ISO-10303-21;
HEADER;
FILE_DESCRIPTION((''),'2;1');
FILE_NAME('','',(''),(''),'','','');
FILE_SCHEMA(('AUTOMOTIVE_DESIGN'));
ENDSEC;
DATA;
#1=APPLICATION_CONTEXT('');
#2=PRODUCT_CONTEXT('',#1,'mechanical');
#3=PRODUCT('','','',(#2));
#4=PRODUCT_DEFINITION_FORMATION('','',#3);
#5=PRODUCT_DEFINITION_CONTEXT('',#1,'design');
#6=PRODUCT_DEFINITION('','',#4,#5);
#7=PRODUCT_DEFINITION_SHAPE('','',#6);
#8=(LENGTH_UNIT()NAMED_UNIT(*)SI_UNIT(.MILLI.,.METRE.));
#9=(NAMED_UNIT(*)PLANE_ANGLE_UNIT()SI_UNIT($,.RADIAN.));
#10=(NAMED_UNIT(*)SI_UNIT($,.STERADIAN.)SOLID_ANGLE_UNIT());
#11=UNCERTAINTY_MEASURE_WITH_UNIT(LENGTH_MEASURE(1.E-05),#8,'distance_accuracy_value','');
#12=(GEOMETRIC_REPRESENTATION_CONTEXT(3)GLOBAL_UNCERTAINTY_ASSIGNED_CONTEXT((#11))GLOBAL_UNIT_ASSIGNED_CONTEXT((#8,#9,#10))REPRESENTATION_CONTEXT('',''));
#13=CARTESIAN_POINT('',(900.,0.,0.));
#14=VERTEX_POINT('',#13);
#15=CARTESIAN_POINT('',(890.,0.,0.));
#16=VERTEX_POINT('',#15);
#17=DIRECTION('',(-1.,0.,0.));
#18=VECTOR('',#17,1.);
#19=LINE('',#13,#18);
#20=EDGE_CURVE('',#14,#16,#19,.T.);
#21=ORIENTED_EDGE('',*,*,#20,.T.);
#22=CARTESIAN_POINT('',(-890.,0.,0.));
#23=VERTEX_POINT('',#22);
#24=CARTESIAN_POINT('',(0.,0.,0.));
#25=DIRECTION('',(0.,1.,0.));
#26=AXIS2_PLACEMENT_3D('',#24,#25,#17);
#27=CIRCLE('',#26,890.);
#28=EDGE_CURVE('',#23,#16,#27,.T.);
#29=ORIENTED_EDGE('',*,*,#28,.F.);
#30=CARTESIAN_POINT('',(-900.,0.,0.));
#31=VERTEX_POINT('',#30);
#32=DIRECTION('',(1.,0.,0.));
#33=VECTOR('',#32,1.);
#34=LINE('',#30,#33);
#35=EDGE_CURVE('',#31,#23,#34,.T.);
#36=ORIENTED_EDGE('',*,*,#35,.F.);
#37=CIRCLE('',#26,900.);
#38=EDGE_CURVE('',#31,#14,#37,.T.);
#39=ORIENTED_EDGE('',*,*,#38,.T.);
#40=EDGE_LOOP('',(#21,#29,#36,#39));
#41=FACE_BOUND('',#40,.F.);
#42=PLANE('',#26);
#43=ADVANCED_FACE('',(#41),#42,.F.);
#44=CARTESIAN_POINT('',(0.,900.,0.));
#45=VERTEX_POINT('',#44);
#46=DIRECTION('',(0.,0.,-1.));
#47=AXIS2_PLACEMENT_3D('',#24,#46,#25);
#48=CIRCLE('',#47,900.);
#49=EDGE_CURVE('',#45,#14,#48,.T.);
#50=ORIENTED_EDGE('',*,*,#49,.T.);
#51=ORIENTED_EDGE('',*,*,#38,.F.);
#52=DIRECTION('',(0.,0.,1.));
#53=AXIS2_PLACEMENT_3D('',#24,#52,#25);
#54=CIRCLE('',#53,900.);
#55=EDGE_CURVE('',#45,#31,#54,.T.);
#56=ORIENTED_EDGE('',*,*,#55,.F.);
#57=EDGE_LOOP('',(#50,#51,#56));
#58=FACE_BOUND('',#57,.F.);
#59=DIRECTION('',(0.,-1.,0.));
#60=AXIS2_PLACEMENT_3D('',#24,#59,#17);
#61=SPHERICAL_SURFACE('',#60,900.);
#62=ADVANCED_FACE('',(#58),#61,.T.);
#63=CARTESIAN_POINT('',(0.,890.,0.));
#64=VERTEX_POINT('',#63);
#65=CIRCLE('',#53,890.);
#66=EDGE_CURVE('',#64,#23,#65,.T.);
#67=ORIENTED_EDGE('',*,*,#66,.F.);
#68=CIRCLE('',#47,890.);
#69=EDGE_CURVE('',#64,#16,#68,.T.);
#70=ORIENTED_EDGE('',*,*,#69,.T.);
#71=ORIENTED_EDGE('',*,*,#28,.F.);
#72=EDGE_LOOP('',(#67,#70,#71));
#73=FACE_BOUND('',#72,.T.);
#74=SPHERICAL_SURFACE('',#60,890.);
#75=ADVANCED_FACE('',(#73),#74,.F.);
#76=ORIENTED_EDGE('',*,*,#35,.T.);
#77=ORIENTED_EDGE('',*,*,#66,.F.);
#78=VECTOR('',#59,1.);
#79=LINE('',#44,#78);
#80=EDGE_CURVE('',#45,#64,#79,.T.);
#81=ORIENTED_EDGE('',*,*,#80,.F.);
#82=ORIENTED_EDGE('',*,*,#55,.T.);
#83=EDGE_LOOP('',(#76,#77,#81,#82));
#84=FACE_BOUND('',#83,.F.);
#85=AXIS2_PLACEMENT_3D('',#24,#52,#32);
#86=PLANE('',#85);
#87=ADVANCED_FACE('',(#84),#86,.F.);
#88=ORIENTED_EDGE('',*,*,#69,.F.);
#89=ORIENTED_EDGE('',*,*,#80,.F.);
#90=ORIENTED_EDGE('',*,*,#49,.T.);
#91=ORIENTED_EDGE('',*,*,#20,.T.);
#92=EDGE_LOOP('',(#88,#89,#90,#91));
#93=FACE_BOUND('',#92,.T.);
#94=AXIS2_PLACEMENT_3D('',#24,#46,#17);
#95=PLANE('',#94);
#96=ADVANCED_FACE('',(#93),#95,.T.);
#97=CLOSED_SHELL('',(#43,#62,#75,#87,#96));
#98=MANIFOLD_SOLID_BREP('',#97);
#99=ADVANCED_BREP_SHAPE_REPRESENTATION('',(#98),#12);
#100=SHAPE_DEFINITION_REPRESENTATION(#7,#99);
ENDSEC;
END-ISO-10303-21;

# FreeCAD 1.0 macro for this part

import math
import FreeCAD as App
import Part
import Sketcher
from FreeCAD import Vector

doc = App.newDocument("Part")
body = doc.addObject("PartDesign::Body", "Body")

sketch1 = body.newObject("Sketcher::SketchObject", "Sketch")
sketch1.AttachmentSupport = (doc.getObject("XY_Plane"), [""])
sketch1.MapMode = "FlatFace"
sketch1.addGeometry(Part.LineSegment(Vector(0, 890, 0), Vector(0, 900, 0)), False)
sketch1.addGeometry(Part.ArcOfCircle(Part.Circle(Vector(0, 0, 0), Vector(0, 0, 1), 900), math.radians(90), math.radians(180)), False)
sketch1.addGeometry(Part.LineSegment(Vector(-900, 0, 0), Vector(-890, 0, 0)), False)
sketch1.addGeometry(Part.ArcOfCircle(Part.Circle(Vector(0, 0, 0), Vector(0, 0, 1), 890), math.radians(90), math.radians(180)), False)
sketch1.addConstraint(Sketcher.Constraint("Coincident", 0, 2, 1, 1))
sketch1.addConstraint(Sketcher.Constraint("Coincident", 1, 2, 2, 1))
sketch1.addConstraint(Sketcher.Constraint("Coincident", 2, 2, 3, 2))
sketch1.addConstraint(Sketcher.Constraint("Coincident", 3, 1, 0, 1))
sketch1.addConstraint(Sketcher.Constraint("Vertical", 0))
sketch1.addConstraint(Sketcher.Constraint("Horizontal", 2))
sketch1.addConstraint(Sketcher.Constraint("Coincident", 1, 3, -1, 1))
sketch1.addConstraint(Sketcher.Constraint("Coincident", 3, 3, -1, 1))
sketch1.addConstraint(Sketcher.Constraint("PointOnObject", 0, 2, -2))
sketch1.addConstraint(Sketcher.Constraint("PointOnObject", 2, 2, -1))
sketch1.addConstraint(Sketcher.Constraint("Radius", 1, 900.0))
sketch1.addConstraint(Sketcher.Constraint("DistanceX", 2, 1, 2, 2, 10.0))
revolution = body.newObject("PartDesign::Revolution", "Revolution")
revolution.Profile = sketch1
revolution.ReferenceAxis = (sketch1, ["V_Axis"])
revolution.Angle = 180

doc.recompute()
